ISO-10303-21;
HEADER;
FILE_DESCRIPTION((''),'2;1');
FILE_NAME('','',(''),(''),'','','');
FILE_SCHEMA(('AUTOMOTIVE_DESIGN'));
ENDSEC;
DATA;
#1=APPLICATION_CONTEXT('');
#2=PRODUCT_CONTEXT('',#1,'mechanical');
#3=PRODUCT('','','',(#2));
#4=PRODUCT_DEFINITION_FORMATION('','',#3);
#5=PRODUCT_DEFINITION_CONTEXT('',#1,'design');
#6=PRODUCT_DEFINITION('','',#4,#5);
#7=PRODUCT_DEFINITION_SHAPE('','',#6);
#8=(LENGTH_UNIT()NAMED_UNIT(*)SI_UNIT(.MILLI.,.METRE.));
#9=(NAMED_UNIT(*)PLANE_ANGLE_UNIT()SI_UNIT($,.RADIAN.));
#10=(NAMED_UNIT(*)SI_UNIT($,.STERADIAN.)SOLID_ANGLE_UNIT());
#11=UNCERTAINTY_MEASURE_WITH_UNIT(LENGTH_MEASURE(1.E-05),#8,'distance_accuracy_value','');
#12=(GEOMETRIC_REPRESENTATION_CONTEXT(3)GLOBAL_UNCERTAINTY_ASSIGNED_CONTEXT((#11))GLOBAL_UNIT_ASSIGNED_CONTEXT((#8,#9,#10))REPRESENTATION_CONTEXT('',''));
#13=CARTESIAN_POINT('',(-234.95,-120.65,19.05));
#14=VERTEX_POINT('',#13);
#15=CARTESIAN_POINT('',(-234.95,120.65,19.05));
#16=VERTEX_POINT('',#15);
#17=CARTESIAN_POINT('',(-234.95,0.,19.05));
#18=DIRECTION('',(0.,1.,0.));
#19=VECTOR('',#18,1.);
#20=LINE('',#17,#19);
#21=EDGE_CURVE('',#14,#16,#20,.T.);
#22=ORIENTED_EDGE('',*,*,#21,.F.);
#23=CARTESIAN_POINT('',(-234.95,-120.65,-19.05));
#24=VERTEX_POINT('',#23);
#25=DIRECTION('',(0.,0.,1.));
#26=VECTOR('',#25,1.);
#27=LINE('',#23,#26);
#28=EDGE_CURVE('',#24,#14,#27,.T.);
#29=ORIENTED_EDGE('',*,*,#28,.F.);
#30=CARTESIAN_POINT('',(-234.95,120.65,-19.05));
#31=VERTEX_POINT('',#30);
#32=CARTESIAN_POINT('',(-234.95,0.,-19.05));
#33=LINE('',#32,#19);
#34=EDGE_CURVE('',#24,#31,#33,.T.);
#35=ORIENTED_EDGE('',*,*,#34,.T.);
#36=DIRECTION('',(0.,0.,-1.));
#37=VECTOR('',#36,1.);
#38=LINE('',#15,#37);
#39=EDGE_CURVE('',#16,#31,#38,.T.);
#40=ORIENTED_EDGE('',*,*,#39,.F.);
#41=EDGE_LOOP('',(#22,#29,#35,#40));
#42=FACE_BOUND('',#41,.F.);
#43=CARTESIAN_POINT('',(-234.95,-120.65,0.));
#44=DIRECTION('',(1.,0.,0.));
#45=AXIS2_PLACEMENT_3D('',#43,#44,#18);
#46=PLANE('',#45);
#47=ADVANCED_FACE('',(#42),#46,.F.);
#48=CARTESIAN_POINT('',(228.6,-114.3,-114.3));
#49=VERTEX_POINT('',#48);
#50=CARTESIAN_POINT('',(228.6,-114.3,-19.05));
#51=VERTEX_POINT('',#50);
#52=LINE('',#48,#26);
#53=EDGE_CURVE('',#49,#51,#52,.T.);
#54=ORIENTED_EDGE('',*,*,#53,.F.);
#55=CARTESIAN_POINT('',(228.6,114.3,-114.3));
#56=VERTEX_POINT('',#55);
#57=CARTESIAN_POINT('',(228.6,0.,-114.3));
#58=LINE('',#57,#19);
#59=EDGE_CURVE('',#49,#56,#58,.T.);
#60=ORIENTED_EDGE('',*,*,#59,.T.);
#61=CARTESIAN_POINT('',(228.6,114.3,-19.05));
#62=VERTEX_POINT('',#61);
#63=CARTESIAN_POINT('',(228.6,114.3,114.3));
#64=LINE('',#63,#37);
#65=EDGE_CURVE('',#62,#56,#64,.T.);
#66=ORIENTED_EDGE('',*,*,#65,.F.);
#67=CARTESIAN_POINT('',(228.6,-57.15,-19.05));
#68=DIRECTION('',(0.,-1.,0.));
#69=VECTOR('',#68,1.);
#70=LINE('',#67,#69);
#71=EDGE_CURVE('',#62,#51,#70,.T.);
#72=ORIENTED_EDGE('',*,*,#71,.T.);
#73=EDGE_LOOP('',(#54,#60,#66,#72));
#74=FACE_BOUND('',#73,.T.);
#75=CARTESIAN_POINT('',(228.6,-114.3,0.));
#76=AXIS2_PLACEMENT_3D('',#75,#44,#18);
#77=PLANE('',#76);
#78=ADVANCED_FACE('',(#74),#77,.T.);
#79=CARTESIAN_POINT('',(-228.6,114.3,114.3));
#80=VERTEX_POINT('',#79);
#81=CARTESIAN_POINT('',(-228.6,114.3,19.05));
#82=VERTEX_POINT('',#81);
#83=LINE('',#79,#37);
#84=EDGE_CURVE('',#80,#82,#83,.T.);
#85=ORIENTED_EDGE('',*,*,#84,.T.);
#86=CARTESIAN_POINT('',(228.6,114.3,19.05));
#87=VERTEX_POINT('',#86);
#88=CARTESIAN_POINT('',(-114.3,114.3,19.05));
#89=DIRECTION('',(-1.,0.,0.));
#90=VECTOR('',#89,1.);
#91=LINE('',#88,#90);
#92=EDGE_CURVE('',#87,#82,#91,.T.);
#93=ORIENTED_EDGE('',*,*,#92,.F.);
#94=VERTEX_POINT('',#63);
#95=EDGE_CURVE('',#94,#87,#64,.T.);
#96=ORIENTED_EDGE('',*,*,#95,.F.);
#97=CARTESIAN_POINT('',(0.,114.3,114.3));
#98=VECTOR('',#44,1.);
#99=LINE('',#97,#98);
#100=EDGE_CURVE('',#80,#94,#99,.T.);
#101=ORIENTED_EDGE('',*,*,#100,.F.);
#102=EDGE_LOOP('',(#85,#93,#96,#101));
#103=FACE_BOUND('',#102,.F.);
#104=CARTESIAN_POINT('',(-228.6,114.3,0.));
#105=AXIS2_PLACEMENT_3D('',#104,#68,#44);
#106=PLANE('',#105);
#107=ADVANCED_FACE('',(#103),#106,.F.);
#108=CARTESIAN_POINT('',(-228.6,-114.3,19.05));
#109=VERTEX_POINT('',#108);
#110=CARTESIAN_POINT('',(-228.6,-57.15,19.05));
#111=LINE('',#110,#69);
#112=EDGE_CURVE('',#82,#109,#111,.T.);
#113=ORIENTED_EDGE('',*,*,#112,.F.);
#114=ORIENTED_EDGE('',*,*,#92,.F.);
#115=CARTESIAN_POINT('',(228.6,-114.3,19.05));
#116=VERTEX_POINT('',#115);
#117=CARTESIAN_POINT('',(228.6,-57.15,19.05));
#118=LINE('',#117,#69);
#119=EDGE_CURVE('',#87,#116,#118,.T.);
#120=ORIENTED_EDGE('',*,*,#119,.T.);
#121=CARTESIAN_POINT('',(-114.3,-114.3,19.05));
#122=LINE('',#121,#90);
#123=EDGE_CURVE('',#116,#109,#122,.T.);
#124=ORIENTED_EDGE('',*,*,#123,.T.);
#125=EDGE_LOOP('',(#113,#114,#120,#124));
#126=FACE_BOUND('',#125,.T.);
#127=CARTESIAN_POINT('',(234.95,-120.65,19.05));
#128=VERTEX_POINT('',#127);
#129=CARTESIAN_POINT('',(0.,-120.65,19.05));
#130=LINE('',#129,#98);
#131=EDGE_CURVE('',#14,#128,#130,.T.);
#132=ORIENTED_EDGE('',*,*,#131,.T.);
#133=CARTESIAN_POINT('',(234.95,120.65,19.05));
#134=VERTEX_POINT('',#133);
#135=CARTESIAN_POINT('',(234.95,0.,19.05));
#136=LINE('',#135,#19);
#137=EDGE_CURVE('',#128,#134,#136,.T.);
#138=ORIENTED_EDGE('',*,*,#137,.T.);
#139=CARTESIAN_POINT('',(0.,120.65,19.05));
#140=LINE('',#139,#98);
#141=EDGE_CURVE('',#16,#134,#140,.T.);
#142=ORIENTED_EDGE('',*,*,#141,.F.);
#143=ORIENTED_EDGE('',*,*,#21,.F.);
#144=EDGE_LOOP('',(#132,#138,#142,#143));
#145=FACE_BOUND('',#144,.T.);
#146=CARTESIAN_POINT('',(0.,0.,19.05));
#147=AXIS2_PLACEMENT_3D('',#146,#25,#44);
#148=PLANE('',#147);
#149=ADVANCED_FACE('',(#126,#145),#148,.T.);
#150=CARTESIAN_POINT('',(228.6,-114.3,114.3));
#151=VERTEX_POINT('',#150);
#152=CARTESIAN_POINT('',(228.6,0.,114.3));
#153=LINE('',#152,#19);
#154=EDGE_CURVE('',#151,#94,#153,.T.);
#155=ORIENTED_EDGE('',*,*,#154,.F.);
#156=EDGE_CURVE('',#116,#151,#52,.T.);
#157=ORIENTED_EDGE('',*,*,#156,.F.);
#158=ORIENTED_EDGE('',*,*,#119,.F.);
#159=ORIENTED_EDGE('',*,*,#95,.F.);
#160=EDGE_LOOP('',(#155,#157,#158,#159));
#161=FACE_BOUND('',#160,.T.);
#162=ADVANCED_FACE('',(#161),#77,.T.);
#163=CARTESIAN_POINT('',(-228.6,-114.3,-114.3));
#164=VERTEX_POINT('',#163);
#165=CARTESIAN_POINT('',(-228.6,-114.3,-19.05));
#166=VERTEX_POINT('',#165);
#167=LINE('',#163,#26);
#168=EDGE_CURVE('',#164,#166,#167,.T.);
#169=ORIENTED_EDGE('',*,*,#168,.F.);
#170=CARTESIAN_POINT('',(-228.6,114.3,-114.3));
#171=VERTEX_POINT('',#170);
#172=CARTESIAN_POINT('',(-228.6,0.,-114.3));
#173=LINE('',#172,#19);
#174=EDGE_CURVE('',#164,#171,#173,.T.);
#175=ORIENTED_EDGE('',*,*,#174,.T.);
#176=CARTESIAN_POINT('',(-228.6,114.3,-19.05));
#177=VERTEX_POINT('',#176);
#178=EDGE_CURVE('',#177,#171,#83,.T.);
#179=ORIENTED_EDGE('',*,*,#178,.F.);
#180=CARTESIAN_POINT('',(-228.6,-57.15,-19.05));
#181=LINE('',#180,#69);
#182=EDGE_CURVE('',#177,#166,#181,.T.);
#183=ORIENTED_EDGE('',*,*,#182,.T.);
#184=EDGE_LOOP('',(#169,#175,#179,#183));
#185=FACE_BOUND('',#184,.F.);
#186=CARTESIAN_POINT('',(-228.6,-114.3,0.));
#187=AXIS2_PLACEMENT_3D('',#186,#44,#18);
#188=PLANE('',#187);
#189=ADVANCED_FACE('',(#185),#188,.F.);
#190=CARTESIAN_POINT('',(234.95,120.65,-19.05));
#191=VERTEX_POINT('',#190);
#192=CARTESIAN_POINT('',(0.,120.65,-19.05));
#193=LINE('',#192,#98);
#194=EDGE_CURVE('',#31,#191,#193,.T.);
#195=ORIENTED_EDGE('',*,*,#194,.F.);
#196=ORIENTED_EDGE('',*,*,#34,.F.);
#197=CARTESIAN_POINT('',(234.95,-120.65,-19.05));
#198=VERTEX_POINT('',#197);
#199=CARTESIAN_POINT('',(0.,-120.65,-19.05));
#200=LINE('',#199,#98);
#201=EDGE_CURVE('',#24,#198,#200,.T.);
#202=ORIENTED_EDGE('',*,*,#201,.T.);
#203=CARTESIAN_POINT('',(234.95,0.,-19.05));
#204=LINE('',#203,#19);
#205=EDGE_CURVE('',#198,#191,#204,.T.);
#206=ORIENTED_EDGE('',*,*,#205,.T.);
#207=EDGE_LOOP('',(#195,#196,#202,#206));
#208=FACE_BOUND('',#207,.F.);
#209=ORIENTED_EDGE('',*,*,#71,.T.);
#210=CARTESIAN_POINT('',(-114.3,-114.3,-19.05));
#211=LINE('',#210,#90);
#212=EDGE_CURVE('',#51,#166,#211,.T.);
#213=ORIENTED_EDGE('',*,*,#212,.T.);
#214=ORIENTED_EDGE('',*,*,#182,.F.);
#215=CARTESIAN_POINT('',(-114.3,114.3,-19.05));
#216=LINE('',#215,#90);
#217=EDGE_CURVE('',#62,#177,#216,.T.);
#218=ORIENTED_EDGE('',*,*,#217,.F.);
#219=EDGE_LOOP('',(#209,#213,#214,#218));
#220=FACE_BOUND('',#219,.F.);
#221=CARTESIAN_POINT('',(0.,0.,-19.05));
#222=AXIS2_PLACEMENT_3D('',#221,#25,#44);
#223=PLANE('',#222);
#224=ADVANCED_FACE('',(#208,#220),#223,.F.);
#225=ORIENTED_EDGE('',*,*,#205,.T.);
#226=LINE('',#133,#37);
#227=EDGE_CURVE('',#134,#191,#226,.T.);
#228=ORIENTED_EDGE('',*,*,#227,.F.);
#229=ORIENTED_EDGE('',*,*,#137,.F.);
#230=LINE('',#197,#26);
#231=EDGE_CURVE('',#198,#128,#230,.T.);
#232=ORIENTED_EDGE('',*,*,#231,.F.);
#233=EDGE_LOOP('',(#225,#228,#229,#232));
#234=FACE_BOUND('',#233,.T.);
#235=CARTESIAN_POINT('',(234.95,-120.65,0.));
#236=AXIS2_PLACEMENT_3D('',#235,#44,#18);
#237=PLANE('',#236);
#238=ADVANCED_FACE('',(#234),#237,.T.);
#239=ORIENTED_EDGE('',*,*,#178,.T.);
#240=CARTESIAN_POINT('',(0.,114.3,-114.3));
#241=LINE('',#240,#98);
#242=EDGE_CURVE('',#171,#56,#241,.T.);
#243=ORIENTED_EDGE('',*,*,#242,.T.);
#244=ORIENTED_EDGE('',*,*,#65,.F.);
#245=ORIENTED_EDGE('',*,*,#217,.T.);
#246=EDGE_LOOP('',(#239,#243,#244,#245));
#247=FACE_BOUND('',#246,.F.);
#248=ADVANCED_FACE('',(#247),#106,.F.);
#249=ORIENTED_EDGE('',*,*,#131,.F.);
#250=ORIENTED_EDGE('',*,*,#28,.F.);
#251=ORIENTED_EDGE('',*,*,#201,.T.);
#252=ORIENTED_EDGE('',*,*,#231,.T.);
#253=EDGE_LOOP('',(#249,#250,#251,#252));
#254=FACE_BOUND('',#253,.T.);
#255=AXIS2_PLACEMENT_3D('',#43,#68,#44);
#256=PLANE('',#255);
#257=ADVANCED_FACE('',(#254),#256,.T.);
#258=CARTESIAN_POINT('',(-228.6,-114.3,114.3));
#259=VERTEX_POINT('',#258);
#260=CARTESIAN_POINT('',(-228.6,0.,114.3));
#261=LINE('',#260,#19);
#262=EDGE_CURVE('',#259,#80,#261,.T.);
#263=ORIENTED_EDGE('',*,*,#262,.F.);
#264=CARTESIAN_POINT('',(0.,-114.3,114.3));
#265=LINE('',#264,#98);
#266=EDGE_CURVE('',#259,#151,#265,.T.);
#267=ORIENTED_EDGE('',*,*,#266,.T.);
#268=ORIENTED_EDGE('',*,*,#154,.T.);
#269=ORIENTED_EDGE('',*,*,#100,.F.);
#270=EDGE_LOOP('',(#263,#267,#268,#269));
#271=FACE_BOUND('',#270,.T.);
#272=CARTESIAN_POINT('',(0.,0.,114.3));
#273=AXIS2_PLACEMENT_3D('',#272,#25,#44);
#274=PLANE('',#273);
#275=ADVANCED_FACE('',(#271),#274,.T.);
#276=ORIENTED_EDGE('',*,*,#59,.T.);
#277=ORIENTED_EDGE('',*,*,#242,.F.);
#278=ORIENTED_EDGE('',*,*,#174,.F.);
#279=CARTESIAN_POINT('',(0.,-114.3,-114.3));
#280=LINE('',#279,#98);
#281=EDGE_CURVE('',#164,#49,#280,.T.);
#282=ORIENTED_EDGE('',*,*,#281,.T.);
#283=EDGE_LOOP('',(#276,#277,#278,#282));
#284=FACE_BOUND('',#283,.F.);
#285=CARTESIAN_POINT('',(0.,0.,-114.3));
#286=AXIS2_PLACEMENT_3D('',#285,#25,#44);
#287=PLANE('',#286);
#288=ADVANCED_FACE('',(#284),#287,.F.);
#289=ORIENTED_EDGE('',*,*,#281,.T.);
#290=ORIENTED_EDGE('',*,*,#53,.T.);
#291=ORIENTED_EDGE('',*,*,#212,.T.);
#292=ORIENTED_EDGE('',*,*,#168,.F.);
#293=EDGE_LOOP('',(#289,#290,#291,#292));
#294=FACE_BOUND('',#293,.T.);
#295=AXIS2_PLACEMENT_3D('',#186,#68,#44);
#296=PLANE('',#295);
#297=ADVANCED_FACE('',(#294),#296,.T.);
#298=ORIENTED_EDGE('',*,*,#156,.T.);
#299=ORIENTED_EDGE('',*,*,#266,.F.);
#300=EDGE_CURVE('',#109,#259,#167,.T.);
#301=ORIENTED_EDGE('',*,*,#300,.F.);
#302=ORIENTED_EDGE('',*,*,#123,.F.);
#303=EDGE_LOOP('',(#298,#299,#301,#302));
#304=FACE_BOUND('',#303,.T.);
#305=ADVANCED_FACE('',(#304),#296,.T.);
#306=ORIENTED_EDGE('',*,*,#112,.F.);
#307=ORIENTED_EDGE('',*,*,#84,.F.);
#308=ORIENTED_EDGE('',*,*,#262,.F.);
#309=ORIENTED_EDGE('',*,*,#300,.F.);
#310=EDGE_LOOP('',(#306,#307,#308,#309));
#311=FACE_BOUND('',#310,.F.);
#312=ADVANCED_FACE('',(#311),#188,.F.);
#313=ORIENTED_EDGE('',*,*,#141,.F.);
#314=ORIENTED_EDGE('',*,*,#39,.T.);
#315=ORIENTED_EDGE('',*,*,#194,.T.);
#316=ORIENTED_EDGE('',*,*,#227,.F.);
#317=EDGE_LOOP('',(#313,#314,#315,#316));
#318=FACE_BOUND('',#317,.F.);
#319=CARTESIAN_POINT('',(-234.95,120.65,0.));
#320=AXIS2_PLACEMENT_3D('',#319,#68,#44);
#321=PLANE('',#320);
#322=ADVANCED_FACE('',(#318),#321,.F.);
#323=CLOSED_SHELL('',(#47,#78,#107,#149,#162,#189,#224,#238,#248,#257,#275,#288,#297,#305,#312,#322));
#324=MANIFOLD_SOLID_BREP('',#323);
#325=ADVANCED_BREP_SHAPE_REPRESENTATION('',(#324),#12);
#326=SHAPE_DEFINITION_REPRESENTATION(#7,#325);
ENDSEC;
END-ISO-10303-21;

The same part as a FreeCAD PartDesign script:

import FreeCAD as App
import Part
import Sketcher
from FreeCAD import Vector
Q = App.Units.Quantity

doc = App.newDocument("Part")
params = doc.addObject("Spreadsheet::Sheet", "Params")
for row, (alias, value) in enumerate([
    ("sketch1_width", "18 in"),
    ("sketch1_height", "9 in"),
    ("pad1_length", "9 in"),
    ("sketch2_width", "18.5 in"),
    ("sketch2_height", "9.5 in"),
    ("pad2_length", "1.5 in"),
], start=1):
    params.set(f"A{row}", alias)
    params.set(f"B{row}", "=" + value)
    params.setAlias(f"B{row}", alias)

body = doc.addObject("PartDesign::Body", "Body")

# Sketch on XY plane
sketch1 = body.newObject("Sketcher::SketchObject", "Sketch")
sketch1.AttachmentSupport = (doc.getObject("XY_Plane"), [""])
sketch1.MapMode = "FlatFace"
sketch1.addGeometry([
    Part.LineSegment(Vector(-228.6, 114.3, 0), Vector(-228.6, -114.3, 0)),
    Part.LineSegment(Vector(-228.6, -114.3, 0), Vector(228.6, -114.3, 0)),
    Part.LineSegment(Vector(228.6, -114.3, 0), Vector(228.6, 114.3, 0)),
    Part.LineSegment(Vector(228.6, 114.3, 0), Vector(-228.6, 114.3, 0)),
], False)
sketch1.addConstraint([
    Sketcher.Constraint("Coincident", 0, 2, 1, 1),
    Sketcher.Constraint("Coincident", 1, 2, 2, 1),
    Sketcher.Constraint("Coincident", 2, 2, 3, 1),
    Sketcher.Constraint("Coincident", 3, 2, 0, 1),
    Sketcher.Constraint("Vertical", 0),
    Sketcher.Constraint("Horizontal", 1),
    Sketcher.Constraint("Vertical", 2),
    Sketcher.Constraint("Horizontal", 3),
    Sketcher.Constraint("Symmetric", 0, 2, 2, 2, -1, 1),
    Sketcher.Constraint("DistanceX", 1, 1, 1, 2, Q("18 in")),
    Sketcher.Constraint("DistanceY", 0, 2, 0, 1, Q("9 in")),
])
sketch1.setExpression("Constraints[9]", "Params.sketch1_width")
sketch1.setExpression("Constraints[10]", "Params.sketch1_height")
pad1 = body.newObject("PartDesign::Pad", "Pad")
pad1.Profile = sketch1
pad1.setExpression("Length", "Params.pad1_length")
pad1.Midplane = True

# Sketch on XY plane
sketch2 = body.newObject("Sketcher::SketchObject", "Sketch001")
sketch2.AttachmentSupport = (doc.getObject("XY_Plane"), [""])
sketch2.MapMode = "FlatFace"
sketch2.addGeometry([
    Part.LineSegment(Vector(-234.95, 120.65, 0), Vector(-234.95, -120.65, 0)),
    Part.LineSegment(Vector(-234.95, -120.65, 0), Vector(234.95, -120.65, 0)),
    Part.LineSegment(Vector(234.95, -120.65, 0), Vector(234.95, 120.65, 0)),
    Part.LineSegment(Vector(234.95, 120.65, 0), Vector(-234.95, 120.65, 0)),
], False)
sketch2.addConstraint([
    Sketcher.Constraint("Coincident", 0, 2, 1, 1),
    Sketcher.Constraint("Coincident", 1, 2, 2, 1),
    Sketcher.Constraint("Coincident", 2, 2, 3, 1),
    Sketcher.Constraint("Coincident", 3, 2, 0, 1),
    Sketcher.Constraint("Vertical", 0),
    Sketcher.Constraint("Horizontal", 1),
    Sketcher.Constraint("Vertical", 2),
    Sketcher.Constraint("Horizontal", 3),
    Sketcher.Constraint("Symmetric", 0, 2, 2, 2, -1, 1),
    Sketcher.Constraint("DistanceX", 1, 1, 1, 2, Q("18.5 in")),
    Sketcher.Constraint("DistanceY", 0, 2, 0, 1, Q("9.5 in")),
])
sketch2.setExpression("Constraints[9]", "Params.sketch2_width")
sketch2.setExpression("Constraints[10]", "Params.sketch2_height")
pad2 = body.newObject("PartDesign::Pad", "Pad001")
pad2.Profile = sketch2
pad2.setExpression("Length", "Params.pad2_length")
pad2.Midplane = True

doc.recompute()
